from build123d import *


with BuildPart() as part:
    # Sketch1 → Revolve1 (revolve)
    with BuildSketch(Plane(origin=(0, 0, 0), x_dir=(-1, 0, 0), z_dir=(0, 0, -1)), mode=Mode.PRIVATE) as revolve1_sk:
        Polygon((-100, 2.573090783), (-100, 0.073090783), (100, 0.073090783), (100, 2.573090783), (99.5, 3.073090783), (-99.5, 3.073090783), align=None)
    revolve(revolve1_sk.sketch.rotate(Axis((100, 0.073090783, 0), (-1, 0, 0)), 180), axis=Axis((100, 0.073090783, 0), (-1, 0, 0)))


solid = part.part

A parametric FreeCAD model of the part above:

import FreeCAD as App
import Part
import Sketcher

V = App.Vector


def add_polygon(sketch, points):
    """Adds a closed chain of lines whose ends are joined by coincident constraints."""
    first, n = sketch.GeometryCount, len(points)
    for a, b in zip(points, points[1:] + points[:1]):
        sketch.addGeometry(Part.LineSegment(App.Vector(*a, 0), App.Vector(*b, 0)), False)
    for i in range(n):
        sketch.addConstraint(Sketcher.Constraint("Coincident", first + i, 2, first + (i + 1) % n, 1))

doc = App.newDocument("Part")
body = doc.addObject("PartDesign::Body", "Body")

# Sketch on XY plane
sketch1 = body.newObject("Sketcher::SketchObject", "Sketch")
sketch1.AttachmentSupport = (doc.getObject("XY_Plane"), [""])
sketch1.MapMode = "FlatFace"
add_polygon(sketch1, [(100, 2.6), (100, 0.1), (-100, 0.1), (-100, 2.6), (-99.5, 3.1), (99.5, 3.1)])  # lines 0-5
sketch1.addGeometry(Part.LineSegment(V(100, 0.1, 0), V(-100, 0.1, 0)), True)  # axis
sketch1.addConstraint(Sketcher.Constraint("Vertical", 0))
sketch1.addConstraint(Sketcher.Constraint("Horizontal", 1))
sketch1.addConstraint(Sketcher.Constraint("Vertical", 2))
sketch1.addConstraint(Sketcher.Constraint("Horizontal", 4))
sketch1.addConstraint(Sketcher.Constraint("Horizontal", 6))
sketch1.addConstraint(Sketcher.Constraint("Coincident", 6, 1, 0, 2))
sketch1.addConstraint(Sketcher.Constraint("Symmetric", 2, 2, 5, 2, -2))
sketch1.addConstraint(Sketcher.Constraint("Perpendicular", 3, 5))
sketch1.addConstraint(Sketcher.Constraint("Vertical", 2, 2, 6, 2))
sketch1.addConstraint(Sketcher.Constraint("Equal", 3, 5))
sketch1.addConstraint(Sketcher.Constraint("DistanceX", 1, 2, 1, 1, 200.0))
sketch1.addConstraint(Sketcher.Constraint("DistanceX", 4, 1, 4, 2, 199.0))
sketch1.addConstraint(Sketcher.Constraint("DistanceY", 0, 2, 0, 1, 2.5))
sketch1.addConstraint(Sketcher.Constraint("DistanceY", -1, 1, 0, 2, 0.073091))
revolution = body.newObject("PartDesign::Revolution", "Revolution")
revolution.Profile = sketch1
revolution.ReferenceAxis = (sketch1, ["Axis0"])
revolution.Angle = 360

doc.recompute()
